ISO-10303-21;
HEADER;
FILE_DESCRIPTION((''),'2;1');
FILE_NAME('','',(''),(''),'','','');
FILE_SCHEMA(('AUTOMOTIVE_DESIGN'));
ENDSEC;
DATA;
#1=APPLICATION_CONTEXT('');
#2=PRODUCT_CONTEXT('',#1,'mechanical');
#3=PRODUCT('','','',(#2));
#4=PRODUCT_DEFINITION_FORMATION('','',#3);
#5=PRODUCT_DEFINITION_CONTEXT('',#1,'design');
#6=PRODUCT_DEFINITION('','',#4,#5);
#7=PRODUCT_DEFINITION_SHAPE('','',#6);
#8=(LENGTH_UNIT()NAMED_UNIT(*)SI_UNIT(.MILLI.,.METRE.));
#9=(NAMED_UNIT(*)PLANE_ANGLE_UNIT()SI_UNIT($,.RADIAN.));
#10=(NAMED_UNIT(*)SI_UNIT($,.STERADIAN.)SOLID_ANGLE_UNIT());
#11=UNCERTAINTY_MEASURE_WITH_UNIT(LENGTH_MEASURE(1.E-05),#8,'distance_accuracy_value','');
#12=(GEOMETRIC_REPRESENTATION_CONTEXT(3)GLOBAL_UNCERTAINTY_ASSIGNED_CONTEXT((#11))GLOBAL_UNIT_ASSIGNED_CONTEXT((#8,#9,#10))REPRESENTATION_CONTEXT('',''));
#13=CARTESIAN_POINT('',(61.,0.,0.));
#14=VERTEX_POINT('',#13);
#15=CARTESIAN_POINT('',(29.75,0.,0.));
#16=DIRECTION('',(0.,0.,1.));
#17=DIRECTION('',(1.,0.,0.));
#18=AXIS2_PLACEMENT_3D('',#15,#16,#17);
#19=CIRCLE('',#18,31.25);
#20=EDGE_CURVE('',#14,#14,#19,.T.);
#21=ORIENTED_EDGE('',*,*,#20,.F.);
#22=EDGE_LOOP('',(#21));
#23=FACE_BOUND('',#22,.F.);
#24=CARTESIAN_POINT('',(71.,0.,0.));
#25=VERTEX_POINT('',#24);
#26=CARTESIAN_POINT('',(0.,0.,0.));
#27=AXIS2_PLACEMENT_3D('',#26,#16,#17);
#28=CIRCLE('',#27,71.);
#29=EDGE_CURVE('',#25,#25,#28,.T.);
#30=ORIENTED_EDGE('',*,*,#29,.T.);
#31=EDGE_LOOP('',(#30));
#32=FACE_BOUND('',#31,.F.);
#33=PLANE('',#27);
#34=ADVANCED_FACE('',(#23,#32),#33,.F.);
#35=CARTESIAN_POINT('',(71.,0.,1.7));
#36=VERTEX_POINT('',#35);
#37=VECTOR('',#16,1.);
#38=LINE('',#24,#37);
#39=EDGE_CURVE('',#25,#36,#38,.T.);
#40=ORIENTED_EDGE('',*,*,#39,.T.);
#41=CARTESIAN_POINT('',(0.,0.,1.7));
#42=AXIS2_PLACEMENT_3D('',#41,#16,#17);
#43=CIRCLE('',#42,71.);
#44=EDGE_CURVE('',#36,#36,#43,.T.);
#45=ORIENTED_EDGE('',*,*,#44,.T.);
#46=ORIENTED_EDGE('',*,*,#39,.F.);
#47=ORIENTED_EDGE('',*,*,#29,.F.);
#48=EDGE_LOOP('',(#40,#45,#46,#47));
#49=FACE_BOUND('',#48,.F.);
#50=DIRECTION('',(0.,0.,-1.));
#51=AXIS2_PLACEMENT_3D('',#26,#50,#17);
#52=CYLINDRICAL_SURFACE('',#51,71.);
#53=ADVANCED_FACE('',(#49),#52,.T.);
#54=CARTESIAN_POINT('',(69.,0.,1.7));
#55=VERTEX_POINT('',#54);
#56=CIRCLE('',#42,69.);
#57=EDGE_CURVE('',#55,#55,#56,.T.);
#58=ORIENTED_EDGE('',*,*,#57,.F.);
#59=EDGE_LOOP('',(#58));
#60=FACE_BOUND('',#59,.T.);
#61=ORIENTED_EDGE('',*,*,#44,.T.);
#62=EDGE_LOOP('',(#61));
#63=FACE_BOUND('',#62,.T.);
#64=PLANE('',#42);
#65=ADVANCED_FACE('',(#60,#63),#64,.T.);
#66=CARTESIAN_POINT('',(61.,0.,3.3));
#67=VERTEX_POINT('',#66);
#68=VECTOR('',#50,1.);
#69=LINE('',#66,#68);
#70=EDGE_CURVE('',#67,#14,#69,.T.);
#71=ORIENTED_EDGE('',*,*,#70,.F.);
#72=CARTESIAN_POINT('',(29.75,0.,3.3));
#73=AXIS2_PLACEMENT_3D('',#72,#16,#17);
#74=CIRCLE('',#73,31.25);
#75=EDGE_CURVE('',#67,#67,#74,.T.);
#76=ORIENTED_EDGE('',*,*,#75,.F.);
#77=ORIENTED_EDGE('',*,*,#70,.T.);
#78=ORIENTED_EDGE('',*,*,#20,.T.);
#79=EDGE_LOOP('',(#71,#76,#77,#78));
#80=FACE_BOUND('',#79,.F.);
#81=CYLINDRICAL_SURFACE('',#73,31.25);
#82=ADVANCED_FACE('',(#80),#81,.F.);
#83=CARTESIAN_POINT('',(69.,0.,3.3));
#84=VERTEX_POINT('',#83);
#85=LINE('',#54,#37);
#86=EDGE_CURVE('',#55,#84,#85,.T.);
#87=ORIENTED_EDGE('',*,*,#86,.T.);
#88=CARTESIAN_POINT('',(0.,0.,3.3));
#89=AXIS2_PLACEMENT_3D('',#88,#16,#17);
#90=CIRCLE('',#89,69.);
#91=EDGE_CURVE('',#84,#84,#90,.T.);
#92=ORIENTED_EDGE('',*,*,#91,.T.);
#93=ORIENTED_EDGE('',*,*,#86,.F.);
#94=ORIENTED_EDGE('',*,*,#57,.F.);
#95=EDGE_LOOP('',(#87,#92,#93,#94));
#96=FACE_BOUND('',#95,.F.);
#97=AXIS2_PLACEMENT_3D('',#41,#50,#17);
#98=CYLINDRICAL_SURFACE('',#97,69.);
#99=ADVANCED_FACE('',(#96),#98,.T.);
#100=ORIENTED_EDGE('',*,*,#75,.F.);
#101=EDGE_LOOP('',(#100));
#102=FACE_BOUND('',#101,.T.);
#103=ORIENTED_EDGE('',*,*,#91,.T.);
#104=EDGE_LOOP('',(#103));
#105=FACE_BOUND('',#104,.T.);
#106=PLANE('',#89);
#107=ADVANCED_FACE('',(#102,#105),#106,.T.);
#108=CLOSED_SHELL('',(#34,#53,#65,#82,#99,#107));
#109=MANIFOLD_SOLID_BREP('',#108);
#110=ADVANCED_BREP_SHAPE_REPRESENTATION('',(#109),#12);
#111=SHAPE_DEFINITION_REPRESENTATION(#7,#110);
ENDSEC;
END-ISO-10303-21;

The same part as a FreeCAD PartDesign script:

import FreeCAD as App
import Part
import Sketcher

V = App.Vector
Q = App.Units.Quantity

doc = App.newDocument("Part")
body = doc.addObject("PartDesign::Body", "Body")

# Sketch on XY plane
sketch1 = body.newObject("Sketcher::SketchObject", "Sketch")
sketch1.AttachmentSupport = (doc.getObject("XY_Plane"), [""])
sketch1.MapMode = "FlatFace"
sketch1.addGeometry(Part.Circle(V(0, 0, 0), V(0, 0, 1), 71), False)
sketch1.addConstraint([
    Sketcher.Constraint("Coincident", 0, 3, -1, 1),
    Sketcher.Constraint("Diameter", 0, Q("142 mm")),
])
pad1 = body.newObject("PartDesign::Pad", "Pad")
pad1.Profile = sketch1
pad1.Length = 1.7

# Sketch on XY plane
sketch2 = body.newObject("Sketcher::SketchObject", "Sketch001")
sketch2.AttachmentSupport = (doc.getObject("XY_Plane"), [""])
sketch2.MapMode = "FlatFace"
sketch2.AttachmentOffset = App.Placement(V(0, 0, 1.7), App.Rotation())
sketch2.addGeometry(Part.Circle(V(0, 0, 0), V(0, 0, 1), 69), False)
sketch2.addConstraint([
    Sketcher.Constraint("Coincident", 0, 3, -1, 1),
    Sketcher.Constraint("Diameter", 0, Q("138 mm")),
])
pad2 = body.newObject("PartDesign::Pad", "Pad001")
pad2.Profile = sketch2
pad2.Length = 1.6

# Sketch on XY plane
sketch3 = body.newObject("Sketcher::SketchObject", "Sketch002")
sketch3.AttachmentSupport = (doc.getObject("XY_Plane"), [""])
sketch3.MapMode = "FlatFace"
sketch3.AttachmentOffset = App.Placement(V(0, 0, 3.3), App.Rotation())
sketch3.addGeometry(Part.Circle(V(29.75, 0, 0), V(0, 0, 1), 31.25), False)
sketch3.addConstraint([
    Sketcher.Constraint("PointOnObject", 0, 3, -1),
    Sketcher.Constraint("Diameter", 0, Q("62.5 mm")),
    Sketcher.Constraint("DistanceX", -1, 1, 0, 3, Q("29.75 mm")),
])
pocket1 = body.newObject("PartDesign::Pocket", "Pocket")
pocket1.Profile = sketch3
pocket1.Length = 25

doc.recompute()
